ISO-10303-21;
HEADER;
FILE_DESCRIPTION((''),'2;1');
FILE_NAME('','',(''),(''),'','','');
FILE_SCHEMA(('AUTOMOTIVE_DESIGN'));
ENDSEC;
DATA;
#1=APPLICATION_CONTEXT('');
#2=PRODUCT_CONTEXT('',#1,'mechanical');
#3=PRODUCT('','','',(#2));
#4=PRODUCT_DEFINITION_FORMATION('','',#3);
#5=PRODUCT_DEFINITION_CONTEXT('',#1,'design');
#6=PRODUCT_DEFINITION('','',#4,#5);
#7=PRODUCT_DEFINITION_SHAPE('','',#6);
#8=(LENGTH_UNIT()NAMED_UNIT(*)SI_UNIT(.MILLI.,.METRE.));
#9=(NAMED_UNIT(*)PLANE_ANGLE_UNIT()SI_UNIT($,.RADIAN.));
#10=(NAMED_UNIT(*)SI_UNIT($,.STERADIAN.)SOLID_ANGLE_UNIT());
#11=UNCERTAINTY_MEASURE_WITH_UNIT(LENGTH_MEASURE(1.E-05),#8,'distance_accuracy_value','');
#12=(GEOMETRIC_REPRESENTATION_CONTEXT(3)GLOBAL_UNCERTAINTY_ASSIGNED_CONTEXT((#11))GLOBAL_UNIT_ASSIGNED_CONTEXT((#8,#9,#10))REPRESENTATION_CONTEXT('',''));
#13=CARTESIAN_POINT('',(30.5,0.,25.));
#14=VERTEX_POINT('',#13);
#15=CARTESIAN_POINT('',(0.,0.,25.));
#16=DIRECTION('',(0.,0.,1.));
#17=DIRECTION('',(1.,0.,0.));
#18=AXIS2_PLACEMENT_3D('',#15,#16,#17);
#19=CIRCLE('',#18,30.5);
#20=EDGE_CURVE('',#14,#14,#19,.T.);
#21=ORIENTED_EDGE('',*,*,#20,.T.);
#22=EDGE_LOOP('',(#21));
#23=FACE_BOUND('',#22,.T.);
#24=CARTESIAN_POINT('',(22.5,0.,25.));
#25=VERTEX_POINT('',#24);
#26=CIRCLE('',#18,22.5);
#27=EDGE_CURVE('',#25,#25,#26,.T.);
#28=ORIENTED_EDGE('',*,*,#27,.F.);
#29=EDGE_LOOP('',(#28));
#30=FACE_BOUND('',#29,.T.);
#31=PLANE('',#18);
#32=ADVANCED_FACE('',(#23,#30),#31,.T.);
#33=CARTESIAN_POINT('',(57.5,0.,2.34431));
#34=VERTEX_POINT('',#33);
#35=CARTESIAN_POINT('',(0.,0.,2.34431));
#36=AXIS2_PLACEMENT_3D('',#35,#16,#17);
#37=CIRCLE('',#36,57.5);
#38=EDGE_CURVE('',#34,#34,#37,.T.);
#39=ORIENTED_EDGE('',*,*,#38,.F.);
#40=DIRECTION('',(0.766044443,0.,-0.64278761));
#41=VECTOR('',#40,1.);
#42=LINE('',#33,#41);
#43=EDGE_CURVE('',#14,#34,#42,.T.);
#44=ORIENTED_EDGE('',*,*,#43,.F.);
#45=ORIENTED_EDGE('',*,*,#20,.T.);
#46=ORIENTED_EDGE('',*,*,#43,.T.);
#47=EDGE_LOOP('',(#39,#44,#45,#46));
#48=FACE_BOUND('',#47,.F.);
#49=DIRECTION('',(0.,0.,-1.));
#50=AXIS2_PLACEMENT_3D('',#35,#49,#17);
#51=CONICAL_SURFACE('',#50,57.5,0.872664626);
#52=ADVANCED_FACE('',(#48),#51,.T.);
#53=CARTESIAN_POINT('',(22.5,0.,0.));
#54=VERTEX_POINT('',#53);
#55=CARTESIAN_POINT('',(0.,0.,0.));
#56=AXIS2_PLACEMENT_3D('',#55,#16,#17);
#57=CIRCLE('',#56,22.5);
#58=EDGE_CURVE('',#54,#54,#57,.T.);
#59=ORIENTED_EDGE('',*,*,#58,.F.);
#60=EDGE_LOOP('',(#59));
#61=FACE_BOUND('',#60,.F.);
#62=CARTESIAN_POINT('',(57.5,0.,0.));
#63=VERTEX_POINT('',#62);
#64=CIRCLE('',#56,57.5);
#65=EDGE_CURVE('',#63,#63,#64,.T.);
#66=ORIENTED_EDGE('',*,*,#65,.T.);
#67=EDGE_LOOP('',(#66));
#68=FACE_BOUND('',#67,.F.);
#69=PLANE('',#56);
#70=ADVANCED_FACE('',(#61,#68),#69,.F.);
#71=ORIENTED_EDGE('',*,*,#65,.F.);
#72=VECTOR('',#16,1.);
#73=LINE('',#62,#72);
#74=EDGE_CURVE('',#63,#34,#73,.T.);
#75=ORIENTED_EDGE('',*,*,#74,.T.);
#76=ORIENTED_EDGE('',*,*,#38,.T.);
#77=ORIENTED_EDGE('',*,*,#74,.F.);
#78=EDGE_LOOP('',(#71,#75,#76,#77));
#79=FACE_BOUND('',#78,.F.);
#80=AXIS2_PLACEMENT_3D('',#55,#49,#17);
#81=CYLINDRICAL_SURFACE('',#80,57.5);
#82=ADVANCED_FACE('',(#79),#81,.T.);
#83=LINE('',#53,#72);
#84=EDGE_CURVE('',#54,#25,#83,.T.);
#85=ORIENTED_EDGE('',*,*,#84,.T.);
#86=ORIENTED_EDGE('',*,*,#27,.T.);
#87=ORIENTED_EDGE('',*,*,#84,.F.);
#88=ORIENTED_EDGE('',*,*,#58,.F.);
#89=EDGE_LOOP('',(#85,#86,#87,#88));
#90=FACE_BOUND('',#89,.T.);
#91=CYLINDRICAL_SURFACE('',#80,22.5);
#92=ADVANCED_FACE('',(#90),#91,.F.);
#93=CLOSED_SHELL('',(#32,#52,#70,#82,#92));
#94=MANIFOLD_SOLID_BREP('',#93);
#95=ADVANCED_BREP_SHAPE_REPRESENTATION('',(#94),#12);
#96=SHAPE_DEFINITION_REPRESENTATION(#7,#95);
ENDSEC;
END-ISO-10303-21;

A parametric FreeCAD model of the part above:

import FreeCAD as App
import Part
import Sketcher
Q = App.Units.Quantity


def edges_at(feature, points):
    """Names of the edges that pass closest to the given points."""
    edges = feature.Shape.Edges
    near = lambda p: min(range(len(edges)), key=lambda i: edges[i].distToShape(Part.Vertex(*p))[0])
    return sorted({f"Edge{near(p) + 1}" for p in points})

doc = App.newDocument("Part")
body = doc.addObject("PartDesign::Body", "Body")

sketch1 = body.newObject("Sketcher::SketchObject", "Sketch")
sketch1.AttachmentSupport = (doc.getObject("XY_Plane"), [""])
sketch1.MapMode = "FlatFace"
sketch1.addGeometry(Part.Circle(App.Vector(0, 0, 0), App.Vector(0, 0, 1), 58), False)
sketch1.addGeometry(Part.Circle(App.Vector(0, 0, 0), App.Vector(0, 0, 1), 22), False)
sketch1.addConstraint(Sketcher.Constraint("Coincident", 0, 3, -1, 1))
sketch1.addConstraint(Sketcher.Constraint("Coincident", 1, 3, -1, 1))
sketch1.addConstraint(Sketcher.Constraint("Diameter", 0, Q("115 mm")))
sketch1.addConstraint(Sketcher.Constraint("Diameter", 1, Q("45 mm")))
pad1 = body.newObject("PartDesign::Pad", "Pad")
pad1.Profile = sketch1
pad1.Length = 25
doc.recompute()

chamfer = body.newObject("PartDesign::Chamfer", "Chamfer")
chamfer.Base = (pad1, edges_at(pad1, [(-57.5, 0, 25)]))
chamfer.ChamferType = "Two distances"
chamfer.Size = 27
chamfer.Size2 = 22.65569
chamfer.FlipDirection = True

doc.recompute()
